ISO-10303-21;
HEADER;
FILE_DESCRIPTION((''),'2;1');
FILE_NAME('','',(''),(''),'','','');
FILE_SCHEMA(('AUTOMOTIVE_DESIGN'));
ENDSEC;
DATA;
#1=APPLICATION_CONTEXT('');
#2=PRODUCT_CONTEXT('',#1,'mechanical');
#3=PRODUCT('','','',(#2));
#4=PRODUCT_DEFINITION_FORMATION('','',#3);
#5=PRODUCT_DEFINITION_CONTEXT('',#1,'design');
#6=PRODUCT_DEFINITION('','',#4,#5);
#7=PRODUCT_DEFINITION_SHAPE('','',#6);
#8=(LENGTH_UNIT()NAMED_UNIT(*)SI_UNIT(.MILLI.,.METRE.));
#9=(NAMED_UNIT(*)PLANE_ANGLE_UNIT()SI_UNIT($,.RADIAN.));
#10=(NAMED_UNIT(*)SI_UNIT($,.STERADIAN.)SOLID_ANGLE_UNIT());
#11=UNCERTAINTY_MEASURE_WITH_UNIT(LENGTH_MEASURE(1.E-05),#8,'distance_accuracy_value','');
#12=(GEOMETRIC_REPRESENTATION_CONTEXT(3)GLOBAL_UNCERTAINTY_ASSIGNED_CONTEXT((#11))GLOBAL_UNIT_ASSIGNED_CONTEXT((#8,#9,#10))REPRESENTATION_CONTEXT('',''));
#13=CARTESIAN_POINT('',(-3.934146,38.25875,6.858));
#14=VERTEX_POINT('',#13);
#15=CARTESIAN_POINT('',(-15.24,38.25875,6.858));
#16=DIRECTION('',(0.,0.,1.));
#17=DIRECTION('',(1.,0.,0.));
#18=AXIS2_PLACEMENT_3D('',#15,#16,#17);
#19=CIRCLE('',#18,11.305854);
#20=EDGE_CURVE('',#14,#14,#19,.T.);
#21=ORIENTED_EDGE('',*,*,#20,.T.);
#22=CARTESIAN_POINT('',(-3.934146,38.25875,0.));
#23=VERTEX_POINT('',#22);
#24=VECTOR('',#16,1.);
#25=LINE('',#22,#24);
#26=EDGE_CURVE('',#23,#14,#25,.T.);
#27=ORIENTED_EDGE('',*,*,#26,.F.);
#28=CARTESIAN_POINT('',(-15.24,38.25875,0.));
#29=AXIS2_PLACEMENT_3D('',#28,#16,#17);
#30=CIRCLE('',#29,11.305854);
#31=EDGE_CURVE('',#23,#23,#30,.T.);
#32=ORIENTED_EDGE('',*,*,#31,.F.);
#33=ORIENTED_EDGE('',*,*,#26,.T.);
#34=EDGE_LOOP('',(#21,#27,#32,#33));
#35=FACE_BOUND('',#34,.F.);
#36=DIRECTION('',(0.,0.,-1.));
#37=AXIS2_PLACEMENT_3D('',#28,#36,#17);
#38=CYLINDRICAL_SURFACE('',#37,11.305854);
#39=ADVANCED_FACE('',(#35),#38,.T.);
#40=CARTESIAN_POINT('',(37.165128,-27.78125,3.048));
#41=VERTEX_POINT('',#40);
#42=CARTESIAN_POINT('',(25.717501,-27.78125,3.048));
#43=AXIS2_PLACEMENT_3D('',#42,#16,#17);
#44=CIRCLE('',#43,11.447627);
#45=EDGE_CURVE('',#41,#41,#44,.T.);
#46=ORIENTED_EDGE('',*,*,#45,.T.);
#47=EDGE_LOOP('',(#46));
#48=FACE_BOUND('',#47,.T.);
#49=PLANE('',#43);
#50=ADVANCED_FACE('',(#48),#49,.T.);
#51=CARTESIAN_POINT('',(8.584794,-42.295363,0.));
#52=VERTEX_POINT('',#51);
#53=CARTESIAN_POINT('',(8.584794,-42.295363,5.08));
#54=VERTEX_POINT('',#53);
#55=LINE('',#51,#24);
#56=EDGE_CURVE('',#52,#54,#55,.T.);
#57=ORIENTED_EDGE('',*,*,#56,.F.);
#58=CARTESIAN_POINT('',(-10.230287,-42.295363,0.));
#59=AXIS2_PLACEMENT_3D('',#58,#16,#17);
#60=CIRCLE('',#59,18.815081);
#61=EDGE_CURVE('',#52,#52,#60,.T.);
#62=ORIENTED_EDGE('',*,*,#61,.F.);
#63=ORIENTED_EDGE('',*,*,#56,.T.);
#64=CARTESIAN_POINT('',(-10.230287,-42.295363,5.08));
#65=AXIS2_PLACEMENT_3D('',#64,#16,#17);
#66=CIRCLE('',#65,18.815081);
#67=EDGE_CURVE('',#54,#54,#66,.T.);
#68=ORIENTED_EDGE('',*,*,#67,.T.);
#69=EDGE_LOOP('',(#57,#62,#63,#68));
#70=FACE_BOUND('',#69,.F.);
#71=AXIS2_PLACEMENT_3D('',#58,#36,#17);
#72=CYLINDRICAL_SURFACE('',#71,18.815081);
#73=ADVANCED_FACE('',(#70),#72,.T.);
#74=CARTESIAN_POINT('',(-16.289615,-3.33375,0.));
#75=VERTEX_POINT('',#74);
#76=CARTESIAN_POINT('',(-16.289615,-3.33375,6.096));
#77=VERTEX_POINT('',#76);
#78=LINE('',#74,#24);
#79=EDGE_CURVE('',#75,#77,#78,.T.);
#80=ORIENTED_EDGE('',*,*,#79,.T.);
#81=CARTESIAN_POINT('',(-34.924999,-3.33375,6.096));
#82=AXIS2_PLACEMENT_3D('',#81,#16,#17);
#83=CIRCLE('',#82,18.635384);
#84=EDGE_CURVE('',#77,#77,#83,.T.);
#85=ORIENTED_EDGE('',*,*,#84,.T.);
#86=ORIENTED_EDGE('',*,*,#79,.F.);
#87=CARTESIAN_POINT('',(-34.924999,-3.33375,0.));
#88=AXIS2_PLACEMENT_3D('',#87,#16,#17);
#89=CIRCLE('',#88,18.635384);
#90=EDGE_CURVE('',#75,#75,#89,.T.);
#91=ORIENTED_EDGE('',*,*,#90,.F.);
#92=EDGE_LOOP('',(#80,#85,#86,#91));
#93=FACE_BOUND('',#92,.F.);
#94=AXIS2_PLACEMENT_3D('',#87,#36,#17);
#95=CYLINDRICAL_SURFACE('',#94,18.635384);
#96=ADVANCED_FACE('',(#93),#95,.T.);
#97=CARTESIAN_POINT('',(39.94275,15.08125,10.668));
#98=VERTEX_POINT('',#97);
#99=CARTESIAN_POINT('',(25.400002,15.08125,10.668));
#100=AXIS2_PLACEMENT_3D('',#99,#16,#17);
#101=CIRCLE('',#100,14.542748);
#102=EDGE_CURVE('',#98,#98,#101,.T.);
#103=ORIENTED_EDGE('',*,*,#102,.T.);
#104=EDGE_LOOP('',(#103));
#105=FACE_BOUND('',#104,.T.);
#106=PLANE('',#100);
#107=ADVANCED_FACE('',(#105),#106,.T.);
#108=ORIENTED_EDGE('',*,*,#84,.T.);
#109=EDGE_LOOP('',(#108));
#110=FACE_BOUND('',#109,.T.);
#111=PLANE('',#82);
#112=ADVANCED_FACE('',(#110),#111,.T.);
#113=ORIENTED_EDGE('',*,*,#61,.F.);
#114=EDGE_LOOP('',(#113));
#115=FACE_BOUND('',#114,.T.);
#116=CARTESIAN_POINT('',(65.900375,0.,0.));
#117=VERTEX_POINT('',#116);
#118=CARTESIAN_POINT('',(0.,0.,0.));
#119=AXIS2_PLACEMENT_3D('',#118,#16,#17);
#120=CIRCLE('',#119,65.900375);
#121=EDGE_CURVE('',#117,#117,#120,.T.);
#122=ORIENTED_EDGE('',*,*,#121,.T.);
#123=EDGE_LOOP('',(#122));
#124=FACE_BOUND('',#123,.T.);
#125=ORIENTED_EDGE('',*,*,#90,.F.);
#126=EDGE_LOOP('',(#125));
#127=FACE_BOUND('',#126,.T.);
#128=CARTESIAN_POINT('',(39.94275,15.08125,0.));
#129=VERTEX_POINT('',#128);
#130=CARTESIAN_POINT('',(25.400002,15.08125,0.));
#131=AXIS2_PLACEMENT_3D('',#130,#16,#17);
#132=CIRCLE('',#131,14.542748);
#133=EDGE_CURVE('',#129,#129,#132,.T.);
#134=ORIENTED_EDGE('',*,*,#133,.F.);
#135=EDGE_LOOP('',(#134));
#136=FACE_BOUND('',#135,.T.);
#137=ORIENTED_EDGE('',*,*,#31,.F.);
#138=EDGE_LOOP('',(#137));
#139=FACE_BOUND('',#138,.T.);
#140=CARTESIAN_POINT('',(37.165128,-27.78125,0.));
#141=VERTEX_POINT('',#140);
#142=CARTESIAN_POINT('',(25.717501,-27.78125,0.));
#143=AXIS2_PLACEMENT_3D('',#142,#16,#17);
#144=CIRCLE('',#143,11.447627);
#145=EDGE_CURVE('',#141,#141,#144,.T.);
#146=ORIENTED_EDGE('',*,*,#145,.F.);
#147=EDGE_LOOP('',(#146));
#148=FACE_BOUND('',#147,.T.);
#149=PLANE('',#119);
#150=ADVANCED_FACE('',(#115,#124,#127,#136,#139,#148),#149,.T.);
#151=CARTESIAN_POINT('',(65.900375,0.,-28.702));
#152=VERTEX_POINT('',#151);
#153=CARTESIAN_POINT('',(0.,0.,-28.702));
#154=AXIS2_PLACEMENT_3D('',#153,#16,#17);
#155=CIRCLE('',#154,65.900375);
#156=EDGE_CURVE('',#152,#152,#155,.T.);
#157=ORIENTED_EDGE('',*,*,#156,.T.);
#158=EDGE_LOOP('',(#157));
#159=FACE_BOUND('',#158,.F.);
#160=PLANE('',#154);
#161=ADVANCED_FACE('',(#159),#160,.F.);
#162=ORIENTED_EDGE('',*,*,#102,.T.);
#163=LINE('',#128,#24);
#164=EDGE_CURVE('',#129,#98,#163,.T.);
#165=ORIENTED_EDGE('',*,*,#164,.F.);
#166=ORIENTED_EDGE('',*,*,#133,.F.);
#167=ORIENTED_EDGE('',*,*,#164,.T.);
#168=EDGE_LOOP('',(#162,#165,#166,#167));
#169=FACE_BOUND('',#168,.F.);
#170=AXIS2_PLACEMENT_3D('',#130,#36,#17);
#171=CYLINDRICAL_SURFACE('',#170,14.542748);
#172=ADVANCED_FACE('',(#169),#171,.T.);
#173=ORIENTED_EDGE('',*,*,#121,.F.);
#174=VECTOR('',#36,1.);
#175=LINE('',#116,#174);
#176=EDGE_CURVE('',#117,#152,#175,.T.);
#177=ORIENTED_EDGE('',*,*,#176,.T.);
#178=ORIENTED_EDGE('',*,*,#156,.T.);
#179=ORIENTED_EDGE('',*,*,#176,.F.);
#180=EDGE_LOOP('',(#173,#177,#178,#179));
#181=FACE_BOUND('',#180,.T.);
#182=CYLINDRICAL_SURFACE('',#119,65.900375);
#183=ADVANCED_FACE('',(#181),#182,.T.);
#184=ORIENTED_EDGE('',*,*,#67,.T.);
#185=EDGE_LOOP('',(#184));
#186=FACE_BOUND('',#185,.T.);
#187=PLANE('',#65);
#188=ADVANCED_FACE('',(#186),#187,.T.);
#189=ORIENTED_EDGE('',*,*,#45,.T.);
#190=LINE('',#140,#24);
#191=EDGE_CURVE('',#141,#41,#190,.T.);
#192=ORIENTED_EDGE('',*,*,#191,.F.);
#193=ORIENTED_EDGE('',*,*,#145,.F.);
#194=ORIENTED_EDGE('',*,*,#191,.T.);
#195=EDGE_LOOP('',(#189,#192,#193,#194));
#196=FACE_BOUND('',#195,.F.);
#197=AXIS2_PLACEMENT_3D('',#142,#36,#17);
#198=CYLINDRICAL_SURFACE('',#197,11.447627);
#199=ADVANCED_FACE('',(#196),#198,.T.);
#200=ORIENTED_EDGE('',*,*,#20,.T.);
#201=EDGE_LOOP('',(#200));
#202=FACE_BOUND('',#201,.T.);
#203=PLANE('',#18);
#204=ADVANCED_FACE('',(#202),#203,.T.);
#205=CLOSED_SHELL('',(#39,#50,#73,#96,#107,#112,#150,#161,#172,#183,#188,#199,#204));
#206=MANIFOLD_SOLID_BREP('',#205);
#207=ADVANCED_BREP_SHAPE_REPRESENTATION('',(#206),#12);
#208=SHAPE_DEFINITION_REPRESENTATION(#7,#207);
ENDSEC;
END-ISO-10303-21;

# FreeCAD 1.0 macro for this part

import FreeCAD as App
import Part
import Sketcher

V = App.Vector
Q = App.Units.Quantity

doc = App.newDocument("Part")
body = doc.addObject("PartDesign::Body", "Body")

# Sketch on XY plane
sketch1 = doc.addObject("Sketcher::SketchObject", "Sketch")
body.addObject(sketch1)
sketch1.AttachmentSupport = (doc.XY_Plane, [""])
sketch1.MapMode = "FlatFace"
sketch1.addGeometry(Part.Circle(V(0, 0, 0), V(0, 0, 1), 66), False)
sketch1.addConstraint(Sketcher.Constraint("Coincident", 0, 3, -1, 1))
sketch1.addConstraint(Sketcher.Constraint("Diameter", 0, 131.80075))
pad1 = doc.addObject("PartDesign::Pad", "Pad")
body.addObject(pad1)
pad1.Profile = sketch1
pad1.Length = Q("1.13 in")
pad1.Reversed = True

# Sketch on XY plane
sketch2 = doc.addObject("Sketcher::SketchObject", "Sketch001")
body.addObject(sketch2)
sketch2.AttachmentSupport = (doc.XY_Plane, [""])
sketch2.MapMode = "FlatFace"
sketch2.addGeometry(Part.Circle(V(-15, 38, 0), V(0, 0, 1), 11), False)
sketch2.addConstraint(Sketcher.Constraint("DistanceX", 0, 3, -1, 1, Q("0.6 in")))
sketch2.addConstraint(Sketcher.Constraint("Diameter", 0, 22.611708))
sketch2.addConstraint(Sketcher.Constraint("DistanceY", -1, 1, 0, 3, 38.25875))
pad2 = doc.addObject("PartDesign::Pad", "Pad001")
body.addObject(pad2)
pad2.Profile = sketch2
pad2.Length = Q("0.27 in")

# Sketch on XY plane
sketch3 = doc.addObject("Sketcher::SketchObject", "Sketch002")
body.addObject(sketch3)
sketch3.AttachmentSupport = (doc.XY_Plane, [""])
sketch3.MapMode = "FlatFace"
sketch3.addGeometry(Part.Circle(V(-35, -3, 0), V(0, 0, 1), 19), False)
sketch3.addConstraint(Sketcher.Constraint("DistanceX", 0, 3, -1, 1, Q("1.375 in")))
sketch3.addConstraint(Sketcher.Constraint("Diameter", 0, 37.270768))
sketch3.addConstraint(Sketcher.Constraint("DistanceY", 0, 3, -1, 1, 3.33375))
pad3 = doc.addObject("PartDesign::Pad", "Pad002")
body.addObject(pad3)
pad3.Profile = sketch3
pad3.Length = Q("0.24 in")

# Sketch on XY plane
sketch4 = doc.addObject("Sketcher::SketchObject", "Sketch003")
body.addObject(sketch4)
sketch4.AttachmentSupport = (doc.XY_Plane, [""])
sketch4.MapMode = "FlatFace"
sketch4.addGeometry(Part.Circle(V(25, 15, 0), V(0, 0, 1), 15), False)
sketch4.addConstraint(Sketcher.Constraint("DistanceX", -1, 1, 0, 3, Q("1.0000001 in")))
sketch4.addConstraint(Sketcher.Constraint("DistanceY", -1, 1, 0, 3, Q("0.59375 in")))
sketch4.addConstraint(Sketcher.Constraint("Diameter", 0, 29.085496))
pad4 = doc.addObject("PartDesign::Pad", "Pad003")
body.addObject(pad4)
pad4.Profile = sketch4
pad4.Length = Q("0.42 in")

# Sketch on XY plane
sketch5 = doc.addObject("Sketcher::SketchObject", "Sketch004")
body.addObject(sketch5)
sketch5.AttachmentSupport = (doc.XY_Plane, [""])
sketch5.MapMode = "FlatFace"
sketch5.addGeometry(Part.Circle(V(26, -28, 0), V(0, 0, 1), 11), False)
sketch5.addConstraint(Sketcher.Constraint("DistanceY", 0, 3, -1, 1, Q("1.09375 in")))
sketch5.addConstraint(Sketcher.Constraint("Diameter", 0, 22.895254))
sketch5.addConstraint(Sketcher.Constraint("DistanceX", -1, 1, 0, 3, Q("1.0125 in")))
pad5 = doc.addObject("PartDesign::Pad", "Pad004")
body.addObject(pad5)
pad5.Profile = sketch5
pad5.Length = Q("0.12 in")

# Sketch on XY plane
sketch6 = doc.addObject("Sketcher::SketchObject", "Sketch005")
body.addObject(sketch6)
sketch6.AttachmentSupport = (doc.XY_Plane, [""])
sketch6.MapMode = "FlatFace"
sketch6.addGeometry(Part.Circle(V(-10, -42, 0), V(0, 0, 1), 19), False)
sketch6.addConstraint(Sketcher.Constraint("Diameter", 0, 37.630162))
sketch6.addConstraint(Sketcher.Constraint("DistanceX", 0, 3, -1, 1, 10.230287))
sketch6.addConstraint(Sketcher.Constraint("DistanceY", 0, 3, -1, 1, 42.295363))
pad6 = doc.addObject("PartDesign::Pad", "Pad005")
body.addObject(pad6)
pad6.Profile = sketch6
pad6.Length = Q("0.2 in")

doc.recompute()
